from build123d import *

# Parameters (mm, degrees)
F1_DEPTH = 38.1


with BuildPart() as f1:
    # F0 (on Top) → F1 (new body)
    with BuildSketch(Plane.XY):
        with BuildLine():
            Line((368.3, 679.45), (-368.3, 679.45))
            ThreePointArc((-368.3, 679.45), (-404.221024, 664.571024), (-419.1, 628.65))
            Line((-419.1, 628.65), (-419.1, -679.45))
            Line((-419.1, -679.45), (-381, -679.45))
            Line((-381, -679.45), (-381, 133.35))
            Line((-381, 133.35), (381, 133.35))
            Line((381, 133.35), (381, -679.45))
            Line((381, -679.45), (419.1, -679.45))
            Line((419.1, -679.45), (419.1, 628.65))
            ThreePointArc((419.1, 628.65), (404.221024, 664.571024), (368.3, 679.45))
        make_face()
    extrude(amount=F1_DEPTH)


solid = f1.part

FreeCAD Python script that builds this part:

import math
import FreeCAD as App
import Part
import Sketcher
Q = App.Units.Quantity

doc = App.newDocument("Part")
body = doc.addObject("PartDesign::Body", "Body")

# Sketch on XY plane
sketch1 = body.newObject("Sketcher::SketchObject", "Sketch")
sketch1.AttachmentSupport = (doc.getObject("XY_Plane"), [""])
sketch1.MapMode = "FlatFace"
sketch1.addGeometry(Part.LineSegment(App.Vector(368, 679, 0), App.Vector(-368, 679, 0)), False)
sketch1.addGeometry(Part.ArcOfCircle(Part.Circle(App.Vector(-368, 629, 0), App.Vector(0, 0, 1), 51), math.radians(90), math.radians(180)), False)
sketch1.addGeometry(Part.LineSegment(App.Vector(-419, 629, 0), App.Vector(-419, -679, 0)), False)
sketch1.addGeometry(Part.LineSegment(App.Vector(-419, -679, 0), App.Vector(-381, -679, 0)), False)
sketch1.addGeometry(Part.LineSegment(App.Vector(-381, -679, 0), App.Vector(-381, 133, 0)), False)
sketch1.addGeometry(Part.LineSegment(App.Vector(-381, 133, 0), App.Vector(381, 133, 0)), False)
sketch1.addGeometry(Part.LineSegment(App.Vector(381, 133, 0), App.Vector(381, -679, 0)), False)
sketch1.addGeometry(Part.LineSegment(App.Vector(381, -679, 0), App.Vector(419, -679, 0)), False)
sketch1.addGeometry(Part.LineSegment(App.Vector(419, -679, 0), App.Vector(419, 629, 0)), False)
sketch1.addGeometry(Part.ArcOfCircle(Part.Circle(App.Vector(368, 629, 0), App.Vector(0, 0, 1), 51), math.radians(0), math.radians(90)), False)
sketch1.addConstraint(Sketcher.Constraint("Tangent", 0, 2, 1, 1))
sketch1.addConstraint(Sketcher.Constraint("Tangent", 1, 2, 2, 1))
sketch1.addConstraint(Sketcher.Constraint("Coincident", 2, 2, 3, 1))
sketch1.addConstraint(Sketcher.Constraint("Coincident", 3, 2, 4, 1))
sketch1.addConstraint(Sketcher.Constraint("Coincident", 4, 2, 5, 1))
sketch1.addConstraint(Sketcher.Constraint("Coincident", 5, 2, 6, 1))
sketch1.addConstraint(Sketcher.Constraint("Coincident", 6, 2, 7, 1))
sketch1.addConstraint(Sketcher.Constraint("Coincident", 7, 2, 8, 1))
sketch1.addConstraint(Sketcher.Constraint("Tangent", 8, 2, 9, 1))
sketch1.addConstraint(Sketcher.Constraint("Tangent", 9, 2, 0, 1))
sketch1.addConstraint(Sketcher.Constraint("Horizontal", 0))
sketch1.addConstraint(Sketcher.Constraint("Vertical", 2))
sketch1.addConstraint(Sketcher.Constraint("Horizontal", 3))
sketch1.addConstraint(Sketcher.Constraint("Vertical", 4))
sketch1.addConstraint(Sketcher.Constraint("Horizontal", 5))
sketch1.addConstraint(Sketcher.Constraint("Vertical", 6))
sketch1.addConstraint(Sketcher.Constraint("Horizontal", 7))
sketch1.addConstraint(Sketcher.Constraint("Vertical", 8))
sketch1.addConstraint(Sketcher.Constraint("Equal", 1, 9))
sketch1.addConstraint(Sketcher.Constraint("Symmetric", 3, 2, 6, 2, -2))
sketch1.addConstraint(Sketcher.Constraint("Equal", 3, 7))
sketch1.addConstraint(Sketcher.Constraint("Radius", 1, Q("2.0000001 in")))
sketch1.addConstraint(Sketcher.Constraint("DistanceX", 0, 2, 0, 1, Q("29 in")))
sketch1.addConstraint(Sketcher.Constraint("DistanceX", 5, 1, 5, 2, Q("30 in")))
sketch1.addConstraint(Sketcher.Constraint("DistanceY", 4, 1, 4, 2, Q("32 in")))
sketch1.addConstraint(Sketcher.Constraint("DistanceY", 2, 2, 2, 1, Q("51.5 in")))
sketch1.addConstraint(Sketcher.Constraint("DistanceY", -1, 1, 1, 3, Q("24.7499999 in")))
pad1 = body.newObject("PartDesign::Pad", "Pad")
pad1.Profile = sketch1
pad1.Length = Q("1.5 in")

doc.recompute()
